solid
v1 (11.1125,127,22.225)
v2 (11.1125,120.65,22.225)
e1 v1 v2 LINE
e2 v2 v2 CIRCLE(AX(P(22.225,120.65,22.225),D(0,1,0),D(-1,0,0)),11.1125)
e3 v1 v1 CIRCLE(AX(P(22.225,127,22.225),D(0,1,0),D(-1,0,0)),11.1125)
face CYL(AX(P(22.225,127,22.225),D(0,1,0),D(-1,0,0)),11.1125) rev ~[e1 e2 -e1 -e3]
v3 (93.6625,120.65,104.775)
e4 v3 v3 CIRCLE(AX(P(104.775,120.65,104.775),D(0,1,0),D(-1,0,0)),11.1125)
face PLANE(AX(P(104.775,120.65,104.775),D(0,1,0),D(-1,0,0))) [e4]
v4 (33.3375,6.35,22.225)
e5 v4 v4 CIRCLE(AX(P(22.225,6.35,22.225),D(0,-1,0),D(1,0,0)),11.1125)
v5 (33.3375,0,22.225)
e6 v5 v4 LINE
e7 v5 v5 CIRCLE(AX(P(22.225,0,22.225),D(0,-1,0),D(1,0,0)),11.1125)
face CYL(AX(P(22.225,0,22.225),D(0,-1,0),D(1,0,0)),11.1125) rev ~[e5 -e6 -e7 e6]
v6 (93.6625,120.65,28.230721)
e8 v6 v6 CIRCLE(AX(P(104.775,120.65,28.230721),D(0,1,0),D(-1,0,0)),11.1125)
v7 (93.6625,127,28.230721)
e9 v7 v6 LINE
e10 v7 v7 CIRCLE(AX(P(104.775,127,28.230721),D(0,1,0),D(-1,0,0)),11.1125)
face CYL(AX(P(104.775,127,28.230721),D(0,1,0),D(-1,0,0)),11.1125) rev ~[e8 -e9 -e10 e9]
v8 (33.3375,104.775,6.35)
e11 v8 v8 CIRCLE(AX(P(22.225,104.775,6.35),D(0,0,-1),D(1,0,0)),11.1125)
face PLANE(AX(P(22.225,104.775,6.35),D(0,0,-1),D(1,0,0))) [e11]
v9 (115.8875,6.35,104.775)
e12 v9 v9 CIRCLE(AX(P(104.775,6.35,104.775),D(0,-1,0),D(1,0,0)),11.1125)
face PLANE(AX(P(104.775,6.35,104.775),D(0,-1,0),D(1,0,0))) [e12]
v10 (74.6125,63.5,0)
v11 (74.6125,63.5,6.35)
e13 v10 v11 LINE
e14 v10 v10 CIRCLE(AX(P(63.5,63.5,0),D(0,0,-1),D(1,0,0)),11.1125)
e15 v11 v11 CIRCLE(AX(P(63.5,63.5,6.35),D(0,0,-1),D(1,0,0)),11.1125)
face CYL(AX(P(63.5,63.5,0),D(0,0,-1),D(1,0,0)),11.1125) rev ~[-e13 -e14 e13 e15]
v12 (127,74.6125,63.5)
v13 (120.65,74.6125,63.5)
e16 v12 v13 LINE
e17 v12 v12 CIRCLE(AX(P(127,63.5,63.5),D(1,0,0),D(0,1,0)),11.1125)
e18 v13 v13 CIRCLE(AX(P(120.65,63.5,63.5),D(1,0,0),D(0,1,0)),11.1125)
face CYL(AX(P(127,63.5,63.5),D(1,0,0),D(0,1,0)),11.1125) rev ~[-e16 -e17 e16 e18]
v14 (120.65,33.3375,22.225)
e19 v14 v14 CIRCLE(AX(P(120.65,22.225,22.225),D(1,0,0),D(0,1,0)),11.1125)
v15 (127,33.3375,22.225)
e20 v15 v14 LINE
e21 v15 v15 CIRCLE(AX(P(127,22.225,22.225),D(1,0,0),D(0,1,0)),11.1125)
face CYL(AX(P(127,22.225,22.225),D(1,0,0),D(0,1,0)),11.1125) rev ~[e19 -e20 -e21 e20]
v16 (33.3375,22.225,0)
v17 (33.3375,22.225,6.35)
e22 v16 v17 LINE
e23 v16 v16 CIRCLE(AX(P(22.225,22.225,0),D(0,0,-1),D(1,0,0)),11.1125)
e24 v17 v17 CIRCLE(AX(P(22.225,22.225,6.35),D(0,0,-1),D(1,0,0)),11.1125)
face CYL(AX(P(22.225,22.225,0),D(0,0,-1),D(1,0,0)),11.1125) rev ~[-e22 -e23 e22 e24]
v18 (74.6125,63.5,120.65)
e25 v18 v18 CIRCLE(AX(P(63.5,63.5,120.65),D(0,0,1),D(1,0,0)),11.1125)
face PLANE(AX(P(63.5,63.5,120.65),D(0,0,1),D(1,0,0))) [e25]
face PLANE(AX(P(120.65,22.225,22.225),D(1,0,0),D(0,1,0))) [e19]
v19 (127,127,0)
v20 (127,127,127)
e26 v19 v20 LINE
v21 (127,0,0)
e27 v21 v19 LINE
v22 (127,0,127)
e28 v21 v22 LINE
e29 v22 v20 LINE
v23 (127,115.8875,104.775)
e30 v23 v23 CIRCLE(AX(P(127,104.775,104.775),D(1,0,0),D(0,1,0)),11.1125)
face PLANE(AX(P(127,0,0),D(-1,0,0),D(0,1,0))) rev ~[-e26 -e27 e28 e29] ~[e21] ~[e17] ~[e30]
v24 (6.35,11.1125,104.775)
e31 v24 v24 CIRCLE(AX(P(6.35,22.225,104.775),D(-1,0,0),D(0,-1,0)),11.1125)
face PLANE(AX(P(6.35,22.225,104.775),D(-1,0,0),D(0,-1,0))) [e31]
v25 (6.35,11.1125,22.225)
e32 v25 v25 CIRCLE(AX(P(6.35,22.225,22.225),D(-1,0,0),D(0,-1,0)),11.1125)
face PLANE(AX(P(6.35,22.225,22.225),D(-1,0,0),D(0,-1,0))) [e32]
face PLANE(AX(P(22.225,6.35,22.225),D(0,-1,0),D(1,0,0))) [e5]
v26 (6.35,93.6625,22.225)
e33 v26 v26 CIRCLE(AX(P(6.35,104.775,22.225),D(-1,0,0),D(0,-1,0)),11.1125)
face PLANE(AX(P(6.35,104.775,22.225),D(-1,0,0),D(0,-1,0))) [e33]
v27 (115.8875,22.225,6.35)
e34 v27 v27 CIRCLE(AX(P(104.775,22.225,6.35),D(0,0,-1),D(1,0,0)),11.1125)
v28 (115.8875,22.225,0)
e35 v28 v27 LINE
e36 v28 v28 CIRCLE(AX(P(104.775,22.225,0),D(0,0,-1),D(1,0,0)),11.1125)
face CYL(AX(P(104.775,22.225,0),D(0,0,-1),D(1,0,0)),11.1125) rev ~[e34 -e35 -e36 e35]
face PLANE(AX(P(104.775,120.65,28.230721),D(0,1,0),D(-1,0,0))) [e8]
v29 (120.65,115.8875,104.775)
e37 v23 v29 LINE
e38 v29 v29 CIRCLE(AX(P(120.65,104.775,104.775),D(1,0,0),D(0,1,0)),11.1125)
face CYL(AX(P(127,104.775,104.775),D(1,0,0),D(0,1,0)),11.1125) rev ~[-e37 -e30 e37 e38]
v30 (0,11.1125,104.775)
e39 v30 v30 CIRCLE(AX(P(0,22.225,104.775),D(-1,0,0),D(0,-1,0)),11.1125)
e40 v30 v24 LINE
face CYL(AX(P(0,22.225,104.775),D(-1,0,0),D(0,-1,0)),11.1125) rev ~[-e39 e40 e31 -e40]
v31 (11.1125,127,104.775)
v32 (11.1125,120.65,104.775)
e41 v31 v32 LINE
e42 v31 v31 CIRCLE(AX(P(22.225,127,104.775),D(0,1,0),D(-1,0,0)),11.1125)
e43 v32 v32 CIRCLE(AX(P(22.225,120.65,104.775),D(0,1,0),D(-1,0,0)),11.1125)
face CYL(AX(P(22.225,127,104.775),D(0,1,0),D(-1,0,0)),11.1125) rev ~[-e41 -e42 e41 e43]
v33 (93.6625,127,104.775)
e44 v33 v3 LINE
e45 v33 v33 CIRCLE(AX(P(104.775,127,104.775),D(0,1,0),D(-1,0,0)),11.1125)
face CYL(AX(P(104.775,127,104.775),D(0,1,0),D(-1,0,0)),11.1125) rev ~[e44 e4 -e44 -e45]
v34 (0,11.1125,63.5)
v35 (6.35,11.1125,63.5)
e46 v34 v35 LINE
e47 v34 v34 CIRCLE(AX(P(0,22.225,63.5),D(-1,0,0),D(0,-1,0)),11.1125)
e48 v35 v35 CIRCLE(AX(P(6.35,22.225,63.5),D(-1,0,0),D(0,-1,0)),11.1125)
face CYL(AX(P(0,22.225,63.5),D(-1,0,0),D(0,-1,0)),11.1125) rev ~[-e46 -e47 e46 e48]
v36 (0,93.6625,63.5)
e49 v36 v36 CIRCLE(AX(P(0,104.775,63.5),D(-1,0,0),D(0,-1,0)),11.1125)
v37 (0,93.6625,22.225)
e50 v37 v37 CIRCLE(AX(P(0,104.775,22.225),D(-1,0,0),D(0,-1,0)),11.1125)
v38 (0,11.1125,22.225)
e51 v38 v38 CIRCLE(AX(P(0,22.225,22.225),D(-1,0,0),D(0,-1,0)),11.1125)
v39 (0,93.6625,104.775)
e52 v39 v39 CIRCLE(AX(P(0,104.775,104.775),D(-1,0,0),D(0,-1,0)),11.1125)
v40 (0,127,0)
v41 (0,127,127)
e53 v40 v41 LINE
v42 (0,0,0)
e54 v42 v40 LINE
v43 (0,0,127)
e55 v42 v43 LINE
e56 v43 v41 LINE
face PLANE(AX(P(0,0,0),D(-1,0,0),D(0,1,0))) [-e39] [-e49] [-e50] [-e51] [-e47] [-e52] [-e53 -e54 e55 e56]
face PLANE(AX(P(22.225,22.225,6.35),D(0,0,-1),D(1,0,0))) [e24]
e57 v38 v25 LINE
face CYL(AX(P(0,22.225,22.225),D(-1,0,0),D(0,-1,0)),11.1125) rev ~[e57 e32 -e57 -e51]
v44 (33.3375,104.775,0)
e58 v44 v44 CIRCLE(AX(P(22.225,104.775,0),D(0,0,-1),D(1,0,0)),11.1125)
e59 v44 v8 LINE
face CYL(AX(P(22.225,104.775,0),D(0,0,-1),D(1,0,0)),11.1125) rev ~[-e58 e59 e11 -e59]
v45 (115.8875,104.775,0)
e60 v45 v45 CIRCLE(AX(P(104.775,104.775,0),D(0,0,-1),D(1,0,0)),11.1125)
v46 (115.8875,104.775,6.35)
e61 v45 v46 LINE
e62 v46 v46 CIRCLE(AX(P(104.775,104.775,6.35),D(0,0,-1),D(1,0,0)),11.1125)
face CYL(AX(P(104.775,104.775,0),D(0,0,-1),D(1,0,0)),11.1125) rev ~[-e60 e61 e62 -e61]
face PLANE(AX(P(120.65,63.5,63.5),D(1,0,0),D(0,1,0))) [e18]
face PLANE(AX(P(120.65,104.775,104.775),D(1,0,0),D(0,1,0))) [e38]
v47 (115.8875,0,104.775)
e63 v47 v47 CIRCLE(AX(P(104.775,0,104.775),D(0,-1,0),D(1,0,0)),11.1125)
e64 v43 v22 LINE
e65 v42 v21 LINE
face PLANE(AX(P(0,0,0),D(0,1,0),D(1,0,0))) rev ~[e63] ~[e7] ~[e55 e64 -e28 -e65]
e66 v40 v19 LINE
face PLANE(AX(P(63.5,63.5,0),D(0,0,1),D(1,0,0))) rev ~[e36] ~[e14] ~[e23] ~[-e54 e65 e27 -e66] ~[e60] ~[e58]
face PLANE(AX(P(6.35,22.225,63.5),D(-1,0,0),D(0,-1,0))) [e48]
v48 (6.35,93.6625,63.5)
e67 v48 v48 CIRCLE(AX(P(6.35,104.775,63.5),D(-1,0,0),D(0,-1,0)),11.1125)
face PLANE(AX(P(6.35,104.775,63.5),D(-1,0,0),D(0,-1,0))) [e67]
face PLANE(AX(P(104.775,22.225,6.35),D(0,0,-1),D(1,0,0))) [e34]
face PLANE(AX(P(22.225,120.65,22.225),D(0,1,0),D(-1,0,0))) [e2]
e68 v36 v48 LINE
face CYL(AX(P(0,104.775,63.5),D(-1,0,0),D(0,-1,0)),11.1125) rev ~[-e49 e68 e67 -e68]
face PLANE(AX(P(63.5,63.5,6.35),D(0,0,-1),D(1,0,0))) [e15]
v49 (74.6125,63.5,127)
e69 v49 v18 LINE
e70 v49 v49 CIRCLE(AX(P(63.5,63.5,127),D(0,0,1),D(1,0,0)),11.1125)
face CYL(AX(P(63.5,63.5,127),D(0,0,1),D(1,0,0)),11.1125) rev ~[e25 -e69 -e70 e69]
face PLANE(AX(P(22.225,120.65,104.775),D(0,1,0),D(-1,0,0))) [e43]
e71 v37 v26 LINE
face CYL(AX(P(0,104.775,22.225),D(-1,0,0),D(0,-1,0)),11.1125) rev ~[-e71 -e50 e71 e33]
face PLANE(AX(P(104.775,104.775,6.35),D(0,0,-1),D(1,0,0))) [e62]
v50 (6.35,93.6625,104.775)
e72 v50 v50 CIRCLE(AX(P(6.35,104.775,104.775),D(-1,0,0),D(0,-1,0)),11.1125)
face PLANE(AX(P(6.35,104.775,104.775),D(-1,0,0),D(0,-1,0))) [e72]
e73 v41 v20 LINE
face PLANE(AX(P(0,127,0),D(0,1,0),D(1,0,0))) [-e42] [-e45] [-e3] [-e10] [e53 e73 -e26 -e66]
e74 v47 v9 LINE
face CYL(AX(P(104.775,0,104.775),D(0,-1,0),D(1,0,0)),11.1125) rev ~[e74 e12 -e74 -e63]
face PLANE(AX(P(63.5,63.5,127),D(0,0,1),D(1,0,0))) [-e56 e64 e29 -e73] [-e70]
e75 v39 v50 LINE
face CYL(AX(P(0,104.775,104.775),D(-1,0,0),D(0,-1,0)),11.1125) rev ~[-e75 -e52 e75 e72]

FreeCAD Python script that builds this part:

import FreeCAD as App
import Part
import Sketcher

V = App.Vector
Q = App.Units.Quantity

doc = App.newDocument("Part")
params = doc.addObject("Spreadsheet::Sheet", "Params")
for row, (alias, value) in enumerate([
    ("sketch1_width", "5 in"),
    ("pad1_length", "5 in"),
    ("sketch2_diameter", "0.875 in"),
    ("pocket1_length", "0.25 in"),
    ("sketch3_diameter", "0.875 in"),
    ("pocket2_length", "0.25 in"),
    ("sketch4_diameter", "0.875 in"),
    ("pocket3_length", "0.25 in"),
    ("sketch5_diameter", "0.875 in"),
    ("pocket4_length", "0.25 in"),
    ("sketch6_diameter", "0.875 in"),
    ("pocket5_length", "0.25 in"),
    ("sketch7_diameter", "0.875 in"),
    ("pocket6_length", "0.25 in"),
], start=1):
    params.set(f"A{row}", alias)
    params.set(f"B{row}", "=" + value)
    params.setAlias(f"B{row}", alias)

body = doc.addObject("PartDesign::Body", "Body")

# Sketch on XY plane
sketch1 = body.newObject("Sketcher::SketchObject", "Sketch")
sketch1.AttachmentSupport = (doc.getObject("XY_Plane"), [""])
sketch1.MapMode = "FlatFace"
sketch1.addGeometry([
    Part.LineSegment(V(0, 127, 0), V(0, 0, 0)),
    Part.LineSegment(V(0, 0, 0), V(127, 0, 0)),
    Part.LineSegment(V(127, 0, 0), V(127, 127, 0)),
    Part.LineSegment(V(127, 127, 0), V(0, 127, 0)),
], False)
sketch1.addConstraint([
    Sketcher.Constraint("Coincident", 0, 2, 1, 1),
    Sketcher.Constraint("Coincident", 1, 2, 2, 1),
    Sketcher.Constraint("Coincident", 2, 2, 3, 1),
    Sketcher.Constraint("Coincident", 3, 2, 0, 1),
    Sketcher.Constraint("Vertical", 0),
    Sketcher.Constraint("Horizontal", 1),
    Sketcher.Constraint("Vertical", 2),
    Sketcher.Constraint("Horizontal", 3),
    Sketcher.Constraint("Coincident", 0, 2, -1, 1),
    Sketcher.Constraint("Equal", 3, 0),
    Sketcher.Constraint("DistanceX", 1, 1, 1, 2, Q("5 in")),
])
sketch1.setExpression("Constraints[10]", "Params.sketch1_width")
pad1 = body.newObject("PartDesign::Pad", "Pad")
pad1.Profile = sketch1
pad1.setExpression("Length", "Params.pad1_length")

# Sketch on XY plane
sketch2 = body.newObject("Sketcher::SketchObject", "Sketch001")
sketch2.AttachmentSupport = (doc.getObject("XY_Plane"), [""])
sketch2.MapMode = "FlatFace"
sketch2.AttachmentOffset = App.Placement(V(0, 0, 5 * 25.4), App.Rotation())
sketch2.addGeometry(Part.Circle(V(63.5, 63.5, 0), V(0, 0, 1), 11.1125), False)
sketch2.addConstraint([
    Sketcher.Constraint("Diameter", 0, Q("0.875 in")),
    Sketcher.Constraint("DistanceX", -1, 1, 0, 3, Q("2.5 in")),
    Sketcher.Constraint("DistanceY", -1, 1, 0, 3, Q("2.5 in")),
])
sketch2.setExpression("Constraints[0]", "Params.sketch2_diameter")
pocket1 = body.newObject("PartDesign::Pocket", "Pocket")
pocket1.Profile = sketch2
pocket1.setExpression("Length", "Params.pocket1_length")

# Sketch on XZ plane
sketch3 = body.newObject("Sketcher::SketchObject", "Sketch002")
sketch3.AttachmentSupport = (doc.getObject("XZ_Plane"), [""])
sketch3.MapMode = "FlatFace"
sketch3.addGeometry([
    Part.Circle(V(22.225, 22.225, 0), V(0, 0, 1), 11.1125),
    Part.Circle(V(104.775, 104.775, 0), V(0, 0, 1), 11.1125),
], False)
sketch3.addConstraint([
    Sketcher.Constraint("Equal", 0, 1),
    Sketcher.Constraint("Diameter", 0, Q("0.875 in")),
    Sketcher.Constraint("DistanceX", 0, 3, 1, 3, Q("3.25 in")),
    Sketcher.Constraint("DistanceY", 0, 3, 1, 3, Q("3.25 in")),
    Sketcher.Constraint("DistanceX", -1, 1, 0, 3, Q("0.875 in")),
    Sketcher.Constraint("DistanceY", -1, 1, 0, 3, Q("0.875 in")),
])
sketch3.setExpression("Constraints[1]", "Params.sketch3_diameter")
pocket2 = body.newObject("PartDesign::Pocket", "Pocket001")
pocket2.Profile = sketch3
pocket2.setExpression("Length", "Params.pocket2_length")

# Sketch on YZ plane
sketch4 = body.newObject("Sketcher::SketchObject", "Sketch003")
sketch4.AttachmentSupport = (doc.getObject("YZ_Plane"), [""])
sketch4.MapMode = "FlatFace"
sketch4.AttachmentOffset = App.Placement(V(0, 0, 5 * 25.4), App.Rotation())
sketch4.addGeometry([
    Part.Circle(V(22.225, 22.225, 0), V(0, 0, 1), 11.1125),
    Part.Circle(V(63.5, 63.5, 0), V(0, 0, 1), 11.1125),
    Part.Circle(V(104.775, 104.775, 0), V(0, 0, 1), 11.1125),
], False)
sketch4.addConstraint([
    Sketcher.Constraint("Equal", 0, 1),
    Sketcher.Constraint("Equal", 1, 2),
    Sketcher.Constraint("Diameter", 0, Q("0.875 in")),
    Sketcher.Constraint("DistanceX", -1, 1, 1, 3, Q("2.5 in")),
    Sketcher.Constraint("DistanceY", -1, 1, 1, 3, Q("2.5 in")),
    Sketcher.Constraint("DistanceX", 0, 3, 2, 3, Q("3.25 in")),
    Sketcher.Constraint("DistanceY", 0, 3, 2, 3, Q("3.25 in")),
    Sketcher.Constraint("DistanceX", -1, 1, 0, 3, Q("0.875 in")),
    Sketcher.Constraint("DistanceY", -1, 1, 0, 3, Q("0.875 in")),
])
sketch4.setExpression("Constraints[2]", "Params.sketch4_diameter")
pocket3 = body.newObject("PartDesign::Pocket", "Pocket002")
pocket3.Profile = sketch4
pocket3.setExpression("Length", "Params.pocket3_length")

# Sketch on XZ plane
sketch5 = body.newObject("Sketcher::SketchObject", "Sketch004")
sketch5.AttachmentSupport = (doc.getObject("XZ_Plane"), [""])
sketch5.MapMode = "FlatFace"
sketch5.AttachmentOffset = App.Placement(V(0, 0, -5 * 25.4), App.Rotation())
sketch5.addGeometry([
    Part.Circle(V(22.225, 104.775, 0), V(0, 0, 1), 11.1125),
    Part.Circle(V(104.775, 104.775, 0), V(0, 0, 1), 11.1125),
    Part.Circle(V(104.775, 28.230721, 0), V(0, 0, 1), 11.1125),
    Part.Circle(V(22.225, 22.225, 0), V(0, 0, 1), 11.1125),
], False)
sketch5.addConstraint([
    Sketcher.Constraint("Equal", 0, 1),
    Sketcher.Constraint("Equal", 1, 2),
    Sketcher.Constraint("Equal", 2, 3),
    Sketcher.Constraint("Horizontal", 0, 3, 1, 3),
    Sketcher.Constraint("Vertical", 1, 3, 2, 3),
    Sketcher.Constraint("Vertical", 0, 3, 3, 3),
    Sketcher.Constraint("Diameter", 0, Q("0.875 in")),
    Sketcher.Constraint("DistanceX", 0, 3, 1, 3, Q("3.25 in")),
    Sketcher.Constraint("DistanceY", 3, 3, 0, 3, Q("3.25 in")),
    Sketcher.Constraint("DistanceX", -1, 1, 0, 3, Q("0.875 in")),
    Sketcher.Constraint("DistanceY", -1, 1, 0, 3, Q("4.125 in")),
    Sketcher.Constraint("DistanceY", -1, 1, 2, 3, Q("28.230721 mm")),
])
sketch5.setExpression("Constraints[6]", "Params.sketch5_diameter")
pocket4 = body.newObject("PartDesign::Pocket", "Pocket003")
pocket4.Profile = sketch5
pocket4.setExpression("Length", "Params.pocket4_length")
pocket4.Reversed = True

# Sketch on XY plane
sketch6 = body.newObject("Sketcher::SketchObject", "Sketch005")
sketch6.AttachmentSupport = (doc.getObject("XY_Plane"), [""])
sketch6.MapMode = "FlatFace"
sketch6.addGeometry([
    Part.Circle(V(22.225, 104.775, 0), V(0, 0, 1), 11.1125),  # 0
    Part.Circle(V(63.5, 63.5, 0), V(0, 0, 1), 11.1125),  # 1
    Part.Circle(V(104.775, 22.225, 0), V(0, 0, 1), 11.1125),  # 2
    Part.Circle(V(22.225, 22.225, 0), V(0, 0, 1), 11.1125),  # 3
    Part.Circle(V(104.775, 104.775, 0), V(0, 0, 1), 11.1125),  # 4
], False)
sketch6.addConstraint([
    Sketcher.Constraint("Equal", 0, 1),
    Sketcher.Constraint("Equal", 1, 2),
    Sketcher.Constraint("Equal", 2, 3),
    Sketcher.Constraint("Equal", 3, 4),
    Sketcher.Constraint("Horizontal", 2, 3, 3, 3),
    Sketcher.Constraint("Horizontal", 0, 3, 4, 3),
    Sketcher.Constraint("Vertical", 0, 3, 3, 3),
    Sketcher.Constraint("Vertical", 2, 3, 4, 3),
    Sketcher.Constraint("Diameter", 0, Q("0.875 in")),
    Sketcher.Constraint("DistanceX", -1, 1, 1, 3, Q("2.5 in")),
    Sketcher.Constraint("DistanceY", -1, 1, 1, 3, Q("2.5 in")),
    Sketcher.Constraint("DistanceX", 0, 3, 2, 3, Q("3.25 in")),
    Sketcher.Constraint("DistanceY", 2, 3, 0, 3, Q("3.25 in")),
    Sketcher.Constraint("DistanceX", -1, 1, 0, 3, Q("0.875 in")),
    Sketcher.Constraint("DistanceY", -1, 1, 0, 3, Q("4.125 in")),
])
sketch6.setExpression("Constraints[8]", "Params.sketch6_diameter")
pocket5 = body.newObject("PartDesign::Pocket", "Pocket004")
pocket5.Profile = sketch6
pocket5.setExpression("Length", "Params.pocket5_length")
pocket5.Reversed = True

# Sketch on YZ plane
sketch7 = body.newObject("Sketcher::SketchObject", "Sketch006")
sketch7.AttachmentSupport = (doc.getObject("YZ_Plane"), [""])
sketch7.MapMode = "FlatFace"
sketch7.addGeometry([
    Part.Circle(V(104.775, 104.775, 0), V(0, 0, 1), 11.1125),  # 0
    Part.Circle(V(104.775, 63.5, 0), V(0, 0, 1), 11.1125),  # 1
    Part.Circle(V(104.775, 22.225, 0), V(0, 0, 1), 11.1125),  # 2
    Part.Circle(V(22.225, 104.775, 0), V(0, 0, 1), 11.1125),  # 3
    Part.Circle(V(22.225, 63.5, 0), V(0, 0, 1), 11.1125),  # 4
    Part.Circle(V(22.225, 22.225, 0), V(0, 0, 1), 11.1125),  # 5
], False)
sketch7.addConstraint([
    Sketcher.Constraint("Equal", 0, 1),
    Sketcher.Constraint("Equal", 1, 2),
    Sketcher.Constraint("Equal", 2, 3),
    Sketcher.Constraint("Equal", 3, 4),
    Sketcher.Constraint("Equal", 4, 5),
    Sketcher.Constraint("Horizontal", 0, 3, 3, 3),
    Sketcher.Constraint("Horizontal", 1, 3, 4, 3),
    Sketcher.Constraint("Horizontal", 2, 3, 5, 3),
    Sketcher.Constraint("Vertical", 0, 3, 1, 3),
    Sketcher.Constraint("Vertical", 1, 3, 2, 3),
    Sketcher.Constraint("Vertical", 3, 3, 4, 3),
    Sketcher.Constraint("Vertical", 4, 3, 5, 3),
    Sketcher.Constraint("Diameter", 0, Q("0.875 in")),
    Sketcher.Constraint("DistanceY", -1, 1, 1, 3, Q("2.5 in")),
    Sketcher.Constraint("DistanceY", 2, 3, 0, 3, Q("3.25 in")),
    Sketcher.Constraint("DistanceX", 3, 3, 0, 3, Q("3.25 in")),
    Sketcher.Constraint("DistanceX", -1, 1, 0, 3, Q("4.125 in")),
    Sketcher.Constraint("DistanceY", -1, 1, 0, 3, Q("4.125 in")),
])
sketch7.setExpression("Constraints[12]", "Params.sketch7_diameter")
pocket6 = body.newObject("PartDesign::Pocket", "Pocket005")
pocket6.Profile = sketch7
pocket6.setExpression("Length", "Params.pocket6_length")
pocket6.Reversed = True

doc.recompute()
